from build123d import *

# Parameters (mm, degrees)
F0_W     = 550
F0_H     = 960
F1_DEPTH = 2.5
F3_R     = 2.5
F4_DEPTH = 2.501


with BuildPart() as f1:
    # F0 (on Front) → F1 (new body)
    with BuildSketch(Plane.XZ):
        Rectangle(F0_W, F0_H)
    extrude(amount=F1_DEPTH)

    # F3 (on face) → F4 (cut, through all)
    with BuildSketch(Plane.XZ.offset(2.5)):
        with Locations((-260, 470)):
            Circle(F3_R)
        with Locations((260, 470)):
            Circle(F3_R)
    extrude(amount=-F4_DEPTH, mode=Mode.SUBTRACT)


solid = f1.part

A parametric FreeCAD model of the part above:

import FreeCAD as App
import Part
import Sketcher
from FreeCAD import Vector


def add_polygon(sketch, points):
    """Adds a closed chain of lines whose ends are joined by coincident constraints."""
    first, n = sketch.GeometryCount, len(points)
    for a, b in zip(points, points[1:] + points[:1]):
        sketch.addGeometry(Part.LineSegment(App.Vector(*a, 0), App.Vector(*b, 0)), False)
    for i in range(n):
        sketch.addConstraint(Sketcher.Constraint("Coincident", first + i, 2, first + (i + 1) % n, 1))

doc = App.newDocument("Part")
params = doc.addObject("Spreadsheet::Sheet", "Params")
for row, (alias, value) in enumerate([
    ("sketch1_width", "550 mm"),
    ("sketch1_height", "960 mm"),
    ("pad1_length", "2.5 mm"),
    ("sketch2_diameter", "5 mm"),
], start=1):
    params.set(f"A{row}", alias)
    params.set(f"B{row}", "=" + value)
    params.setAlias(f"B{row}", alias)

body = doc.addObject("PartDesign::Body", "Body")

# Sketch on XZ plane
sketch1 = body.newObject("Sketcher::SketchObject", "Sketch")
sketch1.AttachmentSupport = (doc.getObject("XZ_Plane"), [""])
sketch1.MapMode = "FlatFace"
add_polygon(sketch1, [(-275, 480), (-275, -480), (275, -480), (275, 480)])  # lines 0-3
sketch1.addConstraint(Sketcher.Constraint("Vertical", 0))
sketch1.addConstraint(Sketcher.Constraint("Horizontal", 1))
sketch1.addConstraint(Sketcher.Constraint("Vertical", 2))
sketch1.addConstraint(Sketcher.Constraint("Horizontal", 3))
sketch1.addConstraint(Sketcher.Constraint("Symmetric", 0, 2, 2, 2, -1, 1))
sketch1.addConstraint(Sketcher.Constraint("DistanceX", 1, 1, 1, 2, 550.0))
sketch1.addConstraint(Sketcher.Constraint("DistanceY", 0, 2, 0, 1, 960.0))
sketch1.setExpression("Constraints[9]", "Params.sketch1_width")
sketch1.setExpression("Constraints[10]", "Params.sketch1_height")
pad1 = body.newObject("PartDesign::Pad", "Pad")
pad1.Profile = sketch1
pad1.setExpression("Length", "Params.pad1_length")

# Sketch on XZ plane
sketch2 = body.newObject("Sketcher::SketchObject", "Sketch001")
sketch2.AttachmentSupport = (doc.getObject("XZ_Plane"), [""])
sketch2.MapMode = "FlatFace"
sketch2.AttachmentOffset = App.Placement(Vector(0, 0, 2.5), App.Rotation())
sketch2.addGeometry(Part.Circle(Vector(-260, 470, 0), Vector(0, 0, 1), 2.5), False)
sketch2.addGeometry(Part.Circle(Vector(260, 470, 0), Vector(0, 0, 1), 2.5), False)
sketch2.addConstraint(Sketcher.Constraint("Equal", 0, 1))
sketch2.addConstraint(Sketcher.Constraint("Symmetric", 0, 3, 1, 3, -2))
sketch2.addConstraint(Sketcher.Constraint("Diameter", 0, 5.0))
sketch2.addConstraint(Sketcher.Constraint("DistanceX", 0, 3, -1, 1, 260.0))
sketch2.addConstraint(Sketcher.Constraint("DistanceY", -1, 1, 0, 3, 470.0))
sketch2.setExpression("Constraints[2]", "Params.sketch2_diameter")
pocket1 = body.newObject("PartDesign::Pocket", "Pocket")
pocket1.Profile = sketch2
pocket1.Type = "ThroughAll"

doc.recompute()
